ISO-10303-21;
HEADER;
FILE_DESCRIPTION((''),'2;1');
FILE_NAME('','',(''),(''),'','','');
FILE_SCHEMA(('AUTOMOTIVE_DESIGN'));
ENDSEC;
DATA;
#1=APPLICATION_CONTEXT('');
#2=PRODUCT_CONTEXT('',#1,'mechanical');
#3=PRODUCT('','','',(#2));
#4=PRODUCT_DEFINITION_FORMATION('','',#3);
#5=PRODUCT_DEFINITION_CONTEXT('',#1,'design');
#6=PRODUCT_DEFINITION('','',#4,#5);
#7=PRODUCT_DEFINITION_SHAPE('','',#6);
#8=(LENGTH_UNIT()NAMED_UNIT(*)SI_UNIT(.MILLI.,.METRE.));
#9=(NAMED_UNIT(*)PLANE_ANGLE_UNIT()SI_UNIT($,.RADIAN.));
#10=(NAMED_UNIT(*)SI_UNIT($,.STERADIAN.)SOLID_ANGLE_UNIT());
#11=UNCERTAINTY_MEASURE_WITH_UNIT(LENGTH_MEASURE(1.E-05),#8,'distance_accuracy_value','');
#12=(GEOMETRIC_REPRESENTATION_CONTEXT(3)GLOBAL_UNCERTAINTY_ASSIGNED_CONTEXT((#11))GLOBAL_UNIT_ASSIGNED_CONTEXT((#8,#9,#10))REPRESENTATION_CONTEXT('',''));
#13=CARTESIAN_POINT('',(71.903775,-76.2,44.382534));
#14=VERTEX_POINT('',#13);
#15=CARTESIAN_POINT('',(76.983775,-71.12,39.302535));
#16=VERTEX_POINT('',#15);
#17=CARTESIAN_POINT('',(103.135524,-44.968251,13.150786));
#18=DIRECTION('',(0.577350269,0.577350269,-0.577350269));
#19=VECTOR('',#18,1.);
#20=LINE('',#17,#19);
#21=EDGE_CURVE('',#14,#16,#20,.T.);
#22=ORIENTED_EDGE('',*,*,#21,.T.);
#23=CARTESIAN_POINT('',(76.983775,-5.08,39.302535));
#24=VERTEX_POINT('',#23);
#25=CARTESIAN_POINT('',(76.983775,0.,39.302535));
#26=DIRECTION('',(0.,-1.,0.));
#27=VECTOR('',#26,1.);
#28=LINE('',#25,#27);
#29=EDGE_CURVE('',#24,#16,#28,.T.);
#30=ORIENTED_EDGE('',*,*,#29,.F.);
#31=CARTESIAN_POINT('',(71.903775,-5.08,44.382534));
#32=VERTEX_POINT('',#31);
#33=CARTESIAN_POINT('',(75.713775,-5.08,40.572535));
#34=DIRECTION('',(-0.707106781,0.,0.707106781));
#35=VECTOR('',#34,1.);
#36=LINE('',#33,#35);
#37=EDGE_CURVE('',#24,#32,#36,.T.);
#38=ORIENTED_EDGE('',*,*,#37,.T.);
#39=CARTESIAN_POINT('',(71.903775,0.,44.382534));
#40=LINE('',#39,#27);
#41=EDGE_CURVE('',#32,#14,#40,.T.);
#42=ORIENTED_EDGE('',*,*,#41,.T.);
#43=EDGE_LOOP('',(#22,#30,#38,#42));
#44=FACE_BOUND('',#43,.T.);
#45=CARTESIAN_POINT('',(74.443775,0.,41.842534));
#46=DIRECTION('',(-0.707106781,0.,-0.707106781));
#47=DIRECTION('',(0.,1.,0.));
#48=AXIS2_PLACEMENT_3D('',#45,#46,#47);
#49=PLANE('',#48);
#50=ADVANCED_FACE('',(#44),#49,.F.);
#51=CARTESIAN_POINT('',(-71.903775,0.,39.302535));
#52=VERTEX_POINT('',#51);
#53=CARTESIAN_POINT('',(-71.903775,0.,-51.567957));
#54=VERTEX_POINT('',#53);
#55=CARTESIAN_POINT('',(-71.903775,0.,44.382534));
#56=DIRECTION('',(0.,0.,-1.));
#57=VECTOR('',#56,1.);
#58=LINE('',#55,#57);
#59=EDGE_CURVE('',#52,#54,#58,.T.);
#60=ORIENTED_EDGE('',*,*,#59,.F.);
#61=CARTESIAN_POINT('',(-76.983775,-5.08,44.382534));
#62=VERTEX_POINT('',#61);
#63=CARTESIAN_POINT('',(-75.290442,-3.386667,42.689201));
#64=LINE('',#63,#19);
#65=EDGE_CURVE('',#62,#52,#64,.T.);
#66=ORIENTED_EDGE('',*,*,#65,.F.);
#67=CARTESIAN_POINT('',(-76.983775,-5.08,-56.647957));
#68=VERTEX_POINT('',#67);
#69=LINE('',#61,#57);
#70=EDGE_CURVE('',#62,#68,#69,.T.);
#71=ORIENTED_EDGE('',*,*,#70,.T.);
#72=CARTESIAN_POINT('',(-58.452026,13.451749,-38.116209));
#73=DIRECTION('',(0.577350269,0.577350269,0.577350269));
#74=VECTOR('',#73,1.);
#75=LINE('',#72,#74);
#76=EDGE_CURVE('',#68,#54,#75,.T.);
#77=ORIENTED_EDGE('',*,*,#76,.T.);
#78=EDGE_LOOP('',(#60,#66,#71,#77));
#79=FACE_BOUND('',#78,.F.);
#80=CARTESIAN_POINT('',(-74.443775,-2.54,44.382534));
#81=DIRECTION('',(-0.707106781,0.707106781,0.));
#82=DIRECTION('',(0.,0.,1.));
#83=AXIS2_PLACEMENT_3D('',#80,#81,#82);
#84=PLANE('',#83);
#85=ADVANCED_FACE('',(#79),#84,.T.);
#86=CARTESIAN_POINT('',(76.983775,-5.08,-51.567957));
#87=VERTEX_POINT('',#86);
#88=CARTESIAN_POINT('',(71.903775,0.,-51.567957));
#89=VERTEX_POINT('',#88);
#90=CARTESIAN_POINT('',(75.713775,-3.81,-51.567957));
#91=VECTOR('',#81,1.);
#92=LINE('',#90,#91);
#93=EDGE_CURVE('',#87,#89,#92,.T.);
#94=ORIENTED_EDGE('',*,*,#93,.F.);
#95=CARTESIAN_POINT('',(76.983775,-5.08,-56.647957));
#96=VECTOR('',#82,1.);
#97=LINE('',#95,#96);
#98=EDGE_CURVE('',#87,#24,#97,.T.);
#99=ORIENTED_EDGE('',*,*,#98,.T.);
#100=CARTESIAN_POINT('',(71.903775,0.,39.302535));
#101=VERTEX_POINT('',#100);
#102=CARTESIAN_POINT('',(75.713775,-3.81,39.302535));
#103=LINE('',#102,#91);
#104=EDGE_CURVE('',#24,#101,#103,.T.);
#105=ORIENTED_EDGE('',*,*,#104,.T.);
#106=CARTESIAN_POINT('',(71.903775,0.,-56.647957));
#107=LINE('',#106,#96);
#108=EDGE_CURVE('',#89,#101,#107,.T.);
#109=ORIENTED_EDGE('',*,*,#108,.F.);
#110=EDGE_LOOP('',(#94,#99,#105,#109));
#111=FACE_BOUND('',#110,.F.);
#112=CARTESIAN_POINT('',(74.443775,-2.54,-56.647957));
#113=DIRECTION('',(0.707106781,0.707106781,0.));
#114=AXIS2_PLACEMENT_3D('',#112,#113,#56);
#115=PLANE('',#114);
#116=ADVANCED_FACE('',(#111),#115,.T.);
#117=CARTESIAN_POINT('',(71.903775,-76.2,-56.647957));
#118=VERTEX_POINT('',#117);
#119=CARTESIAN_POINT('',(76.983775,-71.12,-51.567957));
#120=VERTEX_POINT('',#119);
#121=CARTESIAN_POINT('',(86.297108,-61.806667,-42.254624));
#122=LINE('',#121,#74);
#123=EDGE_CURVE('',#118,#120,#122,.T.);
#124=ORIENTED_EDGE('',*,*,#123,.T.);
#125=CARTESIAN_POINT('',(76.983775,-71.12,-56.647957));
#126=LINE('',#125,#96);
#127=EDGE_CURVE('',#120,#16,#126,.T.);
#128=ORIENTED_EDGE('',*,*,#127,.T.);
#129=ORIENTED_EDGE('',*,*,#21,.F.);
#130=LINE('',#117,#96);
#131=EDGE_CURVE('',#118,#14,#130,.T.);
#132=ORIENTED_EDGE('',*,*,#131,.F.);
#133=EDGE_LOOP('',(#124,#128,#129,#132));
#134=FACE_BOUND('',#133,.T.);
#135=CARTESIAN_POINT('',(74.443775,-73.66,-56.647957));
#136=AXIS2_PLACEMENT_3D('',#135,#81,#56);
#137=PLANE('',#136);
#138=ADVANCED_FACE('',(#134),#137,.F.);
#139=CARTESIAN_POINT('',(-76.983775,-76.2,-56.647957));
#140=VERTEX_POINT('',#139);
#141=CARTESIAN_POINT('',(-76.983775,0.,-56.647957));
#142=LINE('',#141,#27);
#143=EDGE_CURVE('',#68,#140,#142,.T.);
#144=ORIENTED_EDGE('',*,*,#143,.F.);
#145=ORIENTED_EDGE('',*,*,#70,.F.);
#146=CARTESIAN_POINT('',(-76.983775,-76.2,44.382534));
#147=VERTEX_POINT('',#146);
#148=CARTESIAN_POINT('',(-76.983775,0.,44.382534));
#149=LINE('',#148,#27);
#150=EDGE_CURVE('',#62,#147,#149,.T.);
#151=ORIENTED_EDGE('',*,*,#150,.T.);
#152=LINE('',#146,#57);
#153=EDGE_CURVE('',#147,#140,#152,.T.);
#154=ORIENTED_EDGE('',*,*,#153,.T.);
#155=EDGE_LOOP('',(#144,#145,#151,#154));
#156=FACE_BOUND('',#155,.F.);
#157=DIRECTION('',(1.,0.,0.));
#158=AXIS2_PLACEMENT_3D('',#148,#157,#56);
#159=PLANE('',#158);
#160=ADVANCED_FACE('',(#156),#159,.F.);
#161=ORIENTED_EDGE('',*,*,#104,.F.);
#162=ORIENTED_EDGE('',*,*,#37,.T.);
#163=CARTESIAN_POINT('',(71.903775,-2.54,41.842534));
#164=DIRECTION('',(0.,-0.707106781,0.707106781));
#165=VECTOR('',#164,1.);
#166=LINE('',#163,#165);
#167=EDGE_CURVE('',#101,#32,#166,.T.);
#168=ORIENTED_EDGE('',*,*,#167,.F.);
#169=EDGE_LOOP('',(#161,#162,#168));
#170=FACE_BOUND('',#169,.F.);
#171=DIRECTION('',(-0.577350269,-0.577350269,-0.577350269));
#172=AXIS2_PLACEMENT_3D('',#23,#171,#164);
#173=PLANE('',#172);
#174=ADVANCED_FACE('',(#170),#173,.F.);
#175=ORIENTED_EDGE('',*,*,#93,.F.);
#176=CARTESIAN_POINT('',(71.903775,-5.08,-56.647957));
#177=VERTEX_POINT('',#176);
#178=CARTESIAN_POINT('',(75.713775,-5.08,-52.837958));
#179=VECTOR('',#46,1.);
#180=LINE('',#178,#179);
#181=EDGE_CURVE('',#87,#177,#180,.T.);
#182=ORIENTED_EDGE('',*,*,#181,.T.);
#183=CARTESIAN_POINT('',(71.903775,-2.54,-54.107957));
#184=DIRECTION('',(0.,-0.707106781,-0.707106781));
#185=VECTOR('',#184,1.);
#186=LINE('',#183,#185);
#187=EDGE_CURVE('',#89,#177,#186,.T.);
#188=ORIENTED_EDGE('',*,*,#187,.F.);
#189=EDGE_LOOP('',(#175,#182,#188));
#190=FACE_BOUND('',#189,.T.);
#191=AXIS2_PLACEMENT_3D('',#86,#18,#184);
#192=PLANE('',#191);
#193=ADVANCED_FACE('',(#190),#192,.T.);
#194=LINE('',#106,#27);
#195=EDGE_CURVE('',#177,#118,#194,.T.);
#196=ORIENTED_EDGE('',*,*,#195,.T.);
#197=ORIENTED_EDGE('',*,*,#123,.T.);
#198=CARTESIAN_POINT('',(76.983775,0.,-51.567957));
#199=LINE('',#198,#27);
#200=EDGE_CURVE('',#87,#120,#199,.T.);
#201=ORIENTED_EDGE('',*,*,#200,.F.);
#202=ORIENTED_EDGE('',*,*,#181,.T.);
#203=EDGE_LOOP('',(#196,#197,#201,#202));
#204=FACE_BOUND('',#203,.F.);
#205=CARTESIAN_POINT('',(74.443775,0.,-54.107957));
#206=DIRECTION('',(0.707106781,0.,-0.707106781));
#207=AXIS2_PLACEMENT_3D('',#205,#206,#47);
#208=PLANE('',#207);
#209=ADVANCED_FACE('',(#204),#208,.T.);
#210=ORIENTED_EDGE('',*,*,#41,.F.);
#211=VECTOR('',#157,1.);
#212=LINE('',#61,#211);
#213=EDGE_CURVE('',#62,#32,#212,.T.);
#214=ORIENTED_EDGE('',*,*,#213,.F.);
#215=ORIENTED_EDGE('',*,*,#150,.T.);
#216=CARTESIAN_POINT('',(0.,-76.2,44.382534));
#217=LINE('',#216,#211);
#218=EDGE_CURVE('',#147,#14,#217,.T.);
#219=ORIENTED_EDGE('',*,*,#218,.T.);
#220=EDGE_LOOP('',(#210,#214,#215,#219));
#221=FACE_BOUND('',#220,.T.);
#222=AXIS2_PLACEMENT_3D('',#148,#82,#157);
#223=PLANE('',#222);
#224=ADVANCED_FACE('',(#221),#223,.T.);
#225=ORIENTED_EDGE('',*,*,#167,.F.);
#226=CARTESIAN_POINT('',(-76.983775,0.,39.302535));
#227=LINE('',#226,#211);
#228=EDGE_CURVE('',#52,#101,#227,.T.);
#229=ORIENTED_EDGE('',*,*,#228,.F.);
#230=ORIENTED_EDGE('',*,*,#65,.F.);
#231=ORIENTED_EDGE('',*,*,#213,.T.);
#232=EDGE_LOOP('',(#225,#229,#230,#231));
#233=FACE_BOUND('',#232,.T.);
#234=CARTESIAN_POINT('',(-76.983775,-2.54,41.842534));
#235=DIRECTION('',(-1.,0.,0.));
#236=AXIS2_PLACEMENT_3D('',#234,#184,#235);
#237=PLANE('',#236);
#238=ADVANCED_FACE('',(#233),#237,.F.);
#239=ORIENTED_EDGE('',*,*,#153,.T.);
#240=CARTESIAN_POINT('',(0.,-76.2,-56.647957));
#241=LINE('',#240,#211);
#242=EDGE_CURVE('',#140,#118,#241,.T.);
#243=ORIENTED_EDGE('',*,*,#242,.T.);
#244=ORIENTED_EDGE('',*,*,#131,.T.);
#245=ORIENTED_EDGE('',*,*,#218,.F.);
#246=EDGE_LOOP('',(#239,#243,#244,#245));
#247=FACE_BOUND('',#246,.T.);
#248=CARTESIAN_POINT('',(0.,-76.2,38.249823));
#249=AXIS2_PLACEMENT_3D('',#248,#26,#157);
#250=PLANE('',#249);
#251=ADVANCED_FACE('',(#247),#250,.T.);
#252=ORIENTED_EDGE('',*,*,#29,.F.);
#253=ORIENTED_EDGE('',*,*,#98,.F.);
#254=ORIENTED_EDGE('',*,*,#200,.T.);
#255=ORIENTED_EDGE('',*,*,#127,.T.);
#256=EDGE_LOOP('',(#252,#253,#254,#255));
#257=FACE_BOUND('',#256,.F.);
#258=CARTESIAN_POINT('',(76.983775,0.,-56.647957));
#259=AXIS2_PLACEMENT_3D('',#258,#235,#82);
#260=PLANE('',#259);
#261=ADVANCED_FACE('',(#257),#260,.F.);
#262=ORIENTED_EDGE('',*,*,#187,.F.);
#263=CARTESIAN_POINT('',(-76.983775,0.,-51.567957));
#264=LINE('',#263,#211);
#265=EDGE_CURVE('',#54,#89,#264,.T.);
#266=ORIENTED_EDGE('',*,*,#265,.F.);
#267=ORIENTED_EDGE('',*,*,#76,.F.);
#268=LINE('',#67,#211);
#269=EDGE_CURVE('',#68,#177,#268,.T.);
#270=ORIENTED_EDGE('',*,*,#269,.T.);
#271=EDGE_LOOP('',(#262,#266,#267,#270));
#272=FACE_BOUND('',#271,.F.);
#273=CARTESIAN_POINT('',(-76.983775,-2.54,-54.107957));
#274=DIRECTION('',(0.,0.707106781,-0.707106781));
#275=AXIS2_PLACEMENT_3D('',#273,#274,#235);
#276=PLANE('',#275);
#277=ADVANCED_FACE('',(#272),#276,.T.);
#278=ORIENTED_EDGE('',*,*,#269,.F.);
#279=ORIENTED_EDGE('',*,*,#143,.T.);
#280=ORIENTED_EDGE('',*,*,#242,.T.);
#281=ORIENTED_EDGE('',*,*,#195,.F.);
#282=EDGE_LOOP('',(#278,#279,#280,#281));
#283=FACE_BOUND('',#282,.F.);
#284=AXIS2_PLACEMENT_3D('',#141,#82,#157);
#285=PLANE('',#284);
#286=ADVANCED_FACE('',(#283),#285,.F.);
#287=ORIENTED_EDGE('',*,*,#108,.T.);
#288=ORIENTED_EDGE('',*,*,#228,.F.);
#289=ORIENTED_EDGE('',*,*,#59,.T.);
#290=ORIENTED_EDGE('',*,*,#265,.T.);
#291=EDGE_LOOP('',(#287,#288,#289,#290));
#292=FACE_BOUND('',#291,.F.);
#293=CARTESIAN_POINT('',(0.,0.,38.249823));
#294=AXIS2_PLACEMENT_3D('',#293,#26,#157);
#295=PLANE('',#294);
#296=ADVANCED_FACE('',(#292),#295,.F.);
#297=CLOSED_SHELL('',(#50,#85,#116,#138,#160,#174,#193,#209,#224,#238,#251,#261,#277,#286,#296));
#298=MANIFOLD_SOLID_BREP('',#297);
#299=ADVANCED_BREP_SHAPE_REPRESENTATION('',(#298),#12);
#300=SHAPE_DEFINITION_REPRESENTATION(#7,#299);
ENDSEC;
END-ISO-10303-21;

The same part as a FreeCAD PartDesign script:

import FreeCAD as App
import Part
import Sketcher

V = App.Vector
Q = App.Units.Quantity


def edges_at(feature, points):
    """Names of the edges that pass closest to the given points."""
    edges = feature.Shape.Edges
    near = lambda p: min(range(len(edges)), key=lambda i: edges[i].distToShape(Part.Vertex(*p))[0])
    return sorted({f"Edge{near(p) + 1}" for p in points})

doc = App.newDocument("Part")
body = doc.addObject("PartDesign::Body", "Body")

sketch1 = doc.addObject("Sketcher::SketchObject", "Sketch")
body.addObject(sketch1)
sketch1.AttachmentSupport = (doc.XZ_Plane, [""])
sketch1.MapMode = "FlatFace"
sketch1.addGeometry(Part.LineSegment(V(76.983775, 44.382534, 0), V(-76.983775, 44.382534, 0)), False)
sketch1.addGeometry(Part.LineSegment(V(-76.983775, 44.382534, 0), V(-76.983775, -56.647957, 0)), False)
sketch1.addGeometry(Part.LineSegment(V(-76.983775, -56.647957, 0), V(76.983775, -56.647957, 0)), False)
sketch1.addGeometry(Part.LineSegment(V(76.983775, -56.647957, 0), V(76.983775, 44.382534, 0)), False)
sketch1.addConstraint(Sketcher.Constraint("Coincident", 0, 2, 1, 1))
sketch1.addConstraint(Sketcher.Constraint("Coincident", 1, 2, 2, 1))
sketch1.addConstraint(Sketcher.Constraint("Coincident", 2, 2, 3, 1))
sketch1.addConstraint(Sketcher.Constraint("Coincident", 3, 2, 0, 1))
sketch1.addConstraint(Sketcher.Constraint("Horizontal", 0))
sketch1.addConstraint(Sketcher.Constraint("Vertical", 1))
sketch1.addConstraint(Sketcher.Constraint("Horizontal", 2))
sketch1.addConstraint(Sketcher.Constraint("Vertical", 3))
sketch1.addConstraint(Sketcher.Constraint("DistanceX", 0, 2, 0, 1, Q("153.96755 mm")))
sketch1.addConstraint(Sketcher.Constraint("DistanceY", 1, 2, 1, 1, Q("101.030492 mm")))
sketch1.addConstraint(Sketcher.Constraint("DistanceX", 0, 2, -1, 1, Q("76.983775 mm")))
sketch1.addConstraint(Sketcher.Constraint("DistanceY", -1, 1, 0, 2, Q("44.382534 mm")))
pad1 = doc.addObject("PartDesign::Pad", "Pad")
body.addObject(pad1)
pad1.Profile = sketch1
pad1.Length = Q("3 in")
doc.recompute()

chamfer = doc.addObject("PartDesign::Chamfer", "Chamfer")
body.addObject(chamfer)
chamfer.Base = (pad1, edges_at(pad1, [
    (0, 0, -56.648),
    (0, 0, 44.383),
    (-76.984, 0, -6.133),
    (76.984, 0, -6.133),
    (76.984, -38.1, 44.383),
    (76.984, -38.1, -56.648),
    (76.984, -76.2, -6.133),
]))
chamfer.Size = Q("0.2 in")

doc.recompute()
